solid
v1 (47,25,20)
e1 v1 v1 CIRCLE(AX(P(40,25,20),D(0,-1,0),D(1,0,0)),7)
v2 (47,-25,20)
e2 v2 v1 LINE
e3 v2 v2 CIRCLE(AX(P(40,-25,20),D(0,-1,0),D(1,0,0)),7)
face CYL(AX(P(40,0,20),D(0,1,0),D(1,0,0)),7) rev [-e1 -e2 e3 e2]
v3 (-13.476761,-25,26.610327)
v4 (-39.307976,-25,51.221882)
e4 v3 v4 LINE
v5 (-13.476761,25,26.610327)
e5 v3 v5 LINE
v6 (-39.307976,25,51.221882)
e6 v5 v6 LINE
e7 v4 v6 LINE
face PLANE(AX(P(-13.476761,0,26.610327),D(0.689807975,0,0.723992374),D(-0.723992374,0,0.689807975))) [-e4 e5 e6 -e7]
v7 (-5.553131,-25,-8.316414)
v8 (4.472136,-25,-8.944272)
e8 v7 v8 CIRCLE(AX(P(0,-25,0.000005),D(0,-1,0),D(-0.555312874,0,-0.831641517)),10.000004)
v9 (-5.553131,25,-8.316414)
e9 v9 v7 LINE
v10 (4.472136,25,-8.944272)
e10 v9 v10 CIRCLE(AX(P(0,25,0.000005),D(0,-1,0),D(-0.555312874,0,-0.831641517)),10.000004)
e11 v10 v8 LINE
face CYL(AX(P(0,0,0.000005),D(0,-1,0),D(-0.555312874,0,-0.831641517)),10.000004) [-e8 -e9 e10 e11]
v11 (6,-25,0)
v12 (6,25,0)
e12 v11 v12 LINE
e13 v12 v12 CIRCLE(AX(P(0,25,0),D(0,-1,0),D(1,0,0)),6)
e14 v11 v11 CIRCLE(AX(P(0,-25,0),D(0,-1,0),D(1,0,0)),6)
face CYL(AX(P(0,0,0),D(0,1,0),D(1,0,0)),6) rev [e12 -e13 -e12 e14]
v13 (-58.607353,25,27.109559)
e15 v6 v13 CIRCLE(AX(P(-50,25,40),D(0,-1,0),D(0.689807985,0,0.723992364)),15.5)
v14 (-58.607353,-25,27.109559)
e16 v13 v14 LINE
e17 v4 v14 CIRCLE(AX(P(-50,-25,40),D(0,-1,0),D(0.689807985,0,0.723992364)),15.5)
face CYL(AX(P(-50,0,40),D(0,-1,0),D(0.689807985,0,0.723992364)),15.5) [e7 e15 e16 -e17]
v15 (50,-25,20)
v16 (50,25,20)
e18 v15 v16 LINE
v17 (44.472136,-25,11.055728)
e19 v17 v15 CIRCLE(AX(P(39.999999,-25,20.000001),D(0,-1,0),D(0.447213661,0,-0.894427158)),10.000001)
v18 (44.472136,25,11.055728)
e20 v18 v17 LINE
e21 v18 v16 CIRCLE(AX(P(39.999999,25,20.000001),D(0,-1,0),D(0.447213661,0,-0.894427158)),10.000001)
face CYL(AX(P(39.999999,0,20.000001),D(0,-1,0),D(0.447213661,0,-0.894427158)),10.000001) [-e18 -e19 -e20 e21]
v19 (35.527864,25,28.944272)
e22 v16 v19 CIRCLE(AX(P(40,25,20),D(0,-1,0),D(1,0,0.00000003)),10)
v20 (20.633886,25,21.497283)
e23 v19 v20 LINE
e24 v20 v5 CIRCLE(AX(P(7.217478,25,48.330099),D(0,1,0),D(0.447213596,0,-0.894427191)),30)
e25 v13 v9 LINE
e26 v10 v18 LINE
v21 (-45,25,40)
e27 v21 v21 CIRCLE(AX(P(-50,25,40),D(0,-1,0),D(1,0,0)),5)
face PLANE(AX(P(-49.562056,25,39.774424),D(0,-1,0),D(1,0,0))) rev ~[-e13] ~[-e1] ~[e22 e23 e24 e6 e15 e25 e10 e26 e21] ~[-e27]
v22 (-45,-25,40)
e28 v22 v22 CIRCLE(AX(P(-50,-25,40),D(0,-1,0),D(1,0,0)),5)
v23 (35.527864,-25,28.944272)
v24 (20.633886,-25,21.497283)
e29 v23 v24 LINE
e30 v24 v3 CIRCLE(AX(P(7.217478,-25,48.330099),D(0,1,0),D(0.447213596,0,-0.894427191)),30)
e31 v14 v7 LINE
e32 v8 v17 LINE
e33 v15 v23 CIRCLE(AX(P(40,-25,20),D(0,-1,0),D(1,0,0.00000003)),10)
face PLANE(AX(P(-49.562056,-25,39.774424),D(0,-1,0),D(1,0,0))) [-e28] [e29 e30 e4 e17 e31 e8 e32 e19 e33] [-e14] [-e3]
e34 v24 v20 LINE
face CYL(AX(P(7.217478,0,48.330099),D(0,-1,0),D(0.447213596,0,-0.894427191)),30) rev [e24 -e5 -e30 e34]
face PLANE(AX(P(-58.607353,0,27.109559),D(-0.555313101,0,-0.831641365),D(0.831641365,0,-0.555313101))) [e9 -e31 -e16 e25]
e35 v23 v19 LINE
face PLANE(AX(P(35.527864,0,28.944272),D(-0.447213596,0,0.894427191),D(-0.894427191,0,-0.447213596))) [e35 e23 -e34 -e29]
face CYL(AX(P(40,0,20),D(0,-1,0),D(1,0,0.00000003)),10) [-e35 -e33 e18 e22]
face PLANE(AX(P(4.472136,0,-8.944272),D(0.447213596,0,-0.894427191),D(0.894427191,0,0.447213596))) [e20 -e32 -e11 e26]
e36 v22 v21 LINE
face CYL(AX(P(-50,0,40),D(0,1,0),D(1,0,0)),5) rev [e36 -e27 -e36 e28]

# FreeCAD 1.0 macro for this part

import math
import FreeCAD as App
import Part
import Sketcher

V = App.Vector
Q = App.Units.Quantity

doc = App.newDocument("Part")
body = doc.addObject("PartDesign::Body", "Body")

# Sketch on XZ plane
sketch1 = doc.addObject("Sketcher::SketchObject", "Sketch")
body.addObject(sketch1)
sketch1.AttachmentSupport = (doc.XZ_Plane, [""])
sketch1.MapMode = "FlatFace"
sketch1.addGeometry([
    Part.ArcOfCircle(Part.Circle(V(-50, 40, 0), V(0, 0, 1), 16), math.radians(46), math.radians(236)),  # 0
    Part.LineSegment(V(-59, 27, 0), V(-6, -8, 0)),  # 1
    Part.ArcOfCircle(Part.Circle(V(0, 0, 0), V(0, 0, 1), 10), math.radians(-124), math.radians(-63)),  # 2
    Part.LineSegment(V(4, -9, 0), V(44, 11, 0)),  # 3
    Part.ArcOfCircle(Part.Circle(V(40, 20, 0), V(0, 0, 1), 10), math.radians(-63), math.radians(0)),  # 4
    Part.ArcOfCircle(Part.Circle(V(40, 20, 0), V(0, 0, 1), 10), math.radians(0), math.radians(117)),  # 5
    Part.LineSegment(V(36, 29, 0), V(21, 21, 0)),  # 6
    Part.ArcOfCircle(Part.Circle(V(7, 48, 0), V(0, 0, 1), 30), math.radians(-134), math.radians(-63)),  # 7
    Part.LineSegment(V(-13, 27, 0), V(-39, 51, 0)),  # 8
    Part.Circle(V(0, 0, 0), V(0, 0, 1), 6),  # 9
    Part.Circle(V(-50, 40, 0), V(0, 0, 1), 5),  # 10
    Part.Circle(V(40, 20, 0), V(0, 0, 1), 7),  # 11
], False)
sketch1.addConstraint([
    Sketcher.Constraint("Tangent", 0, 2, 1, 1),
    Sketcher.Constraint("Tangent", 1, 2, 2, 1),
    Sketcher.Constraint("Tangent", 2, 2, 3, 1),
    Sketcher.Constraint("Tangent", 3, 2, 4, 1),
    Sketcher.Constraint("Tangent", 4, 2, 5, 1),
    Sketcher.Constraint("Tangent", 5, 2, 6, 1),
    Sketcher.Constraint("Tangent", 6, 2, 7, 2),
    Sketcher.Constraint("Tangent", 7, 1, 8, 1),
    Sketcher.Constraint("Tangent", 8, 2, 0, 1),
    Sketcher.Constraint("Coincident", 2, 3, -1, 1),
    Sketcher.Constraint("Coincident", 9, 3, -1, 1),
    Sketcher.Constraint("Coincident", 10, 3, 0, 3),
    Sketcher.Constraint("Coincident", 11, 3, 4, 3),
    Sketcher.Constraint("Equal", 4, 5),
    Sketcher.Constraint("Parallel", 3, 6),
    Sketcher.Constraint("Horizontal", 11, 3, 4, 2),
    Sketcher.Constraint("Diameter", 9, Q("12 mm")),
    Sketcher.Constraint("Diameter", 10, Q("10 mm")),
    Sketcher.Constraint("Diameter", 11, Q("14 mm")),
    Sketcher.Constraint("Radius", 4, Q("10.000001 mm")),
    Sketcher.Constraint("Radius", 7, Q("30 mm")),
    Sketcher.Constraint("Radius", 0, Q("15.5 mm")),
    Sketcher.Constraint("DistanceX", 0, 3, -1, 1, Q("50 mm")),
    Sketcher.Constraint("DistanceY", -1, 1, 0, 3, Q("40 mm")),
    Sketcher.Constraint("DistanceX", -1, 1, 4, 3, Q("39.999999 mm")),
    Sketcher.Constraint("DistanceY", -1, 1, 4, 3, Q("20.000001 mm")),
    Sketcher.Constraint("DistanceX", 2, 2, 3, 2, Q("40 mm")),
    Sketcher.Constraint("DistanceY", -1, 1, 7, 3, Q("48.330099 mm")),
])
pad1 = doc.addObject("PartDesign::Pad", "Pad")
body.addObject(pad1)
pad1.Profile = sketch1
pad1.Length = 50
pad1.Midplane = True

doc.recompute()
